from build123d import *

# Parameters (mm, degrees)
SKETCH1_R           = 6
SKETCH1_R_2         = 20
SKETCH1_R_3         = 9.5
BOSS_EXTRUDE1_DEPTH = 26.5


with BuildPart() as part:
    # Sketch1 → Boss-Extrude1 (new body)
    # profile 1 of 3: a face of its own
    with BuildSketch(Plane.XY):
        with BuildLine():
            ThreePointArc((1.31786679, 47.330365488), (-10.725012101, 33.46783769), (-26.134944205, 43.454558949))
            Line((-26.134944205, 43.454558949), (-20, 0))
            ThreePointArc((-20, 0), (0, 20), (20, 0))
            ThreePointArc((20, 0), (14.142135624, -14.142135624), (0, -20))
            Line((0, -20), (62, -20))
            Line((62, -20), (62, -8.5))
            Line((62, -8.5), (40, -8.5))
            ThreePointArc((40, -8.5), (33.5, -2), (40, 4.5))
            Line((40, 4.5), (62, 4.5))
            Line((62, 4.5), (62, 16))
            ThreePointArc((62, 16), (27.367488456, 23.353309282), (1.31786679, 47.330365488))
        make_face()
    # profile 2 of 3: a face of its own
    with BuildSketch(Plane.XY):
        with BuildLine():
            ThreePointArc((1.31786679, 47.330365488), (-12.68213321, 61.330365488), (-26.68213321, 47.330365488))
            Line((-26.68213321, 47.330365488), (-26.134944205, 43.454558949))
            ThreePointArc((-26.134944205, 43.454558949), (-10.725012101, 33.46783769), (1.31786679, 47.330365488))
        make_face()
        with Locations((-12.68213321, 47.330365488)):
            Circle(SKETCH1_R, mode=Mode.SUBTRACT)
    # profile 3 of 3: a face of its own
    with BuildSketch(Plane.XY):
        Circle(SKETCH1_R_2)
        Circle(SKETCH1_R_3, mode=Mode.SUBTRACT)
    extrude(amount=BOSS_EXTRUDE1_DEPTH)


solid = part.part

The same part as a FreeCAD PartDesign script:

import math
import FreeCAD as App
import Part
import Sketcher

doc = App.newDocument("Part")
params = doc.addObject("Spreadsheet::Sheet", "Params")
for row, (alias, value) in enumerate([
    ("sketch1_diameter", "12 mm"),
    ("sketch1_diameter2", "19 mm"),
    ("sketch1_radius", "20 mm"),
    ("sketch1_radius2", "67 mm"),
    ("sketch1_radius3", "14 mm"),
    ("pad1_length", "26.5 mm"),
], start=1):
    params.set(f"A{row}", alias)
    params.set(f"B{row}", "=" + value)
    params.setAlias(f"B{row}", alias)

body = doc.addObject("PartDesign::Body", "Body")

# Sketch on XY plane
sketch1 = doc.addObject("Sketcher::SketchObject", "Sketch")
body.addObject(sketch1)
sketch1.AttachmentSupport = (doc.XY_Plane, [""])
sketch1.MapMode = "FlatFace"
sketch1.addGeometry([
    Part.LineSegment(App.Vector(-26.134944, 43.454559, 0), App.Vector(-20, 0, 0)),  # 0
    Part.ArcOfCircle(Part.Circle(App.Vector(0, 0, 0), App.Vector(0, 0, 1), 20), math.radians(180), math.radians(270)),  # 1
    Part.LineSegment(App.Vector(0, -20, 0), App.Vector(62, -20, 0)),  # 2
    Part.LineSegment(App.Vector(62, -20, 0), App.Vector(62, -8.5, 0)),  # 3
    Part.LineSegment(App.Vector(62, -8.5, 0), App.Vector(40, -8.5, 0)),  # 4
    Part.ArcOfCircle(Part.Circle(App.Vector(40, -2, 0), App.Vector(0, 0, 1), 6.5), math.radians(90), math.radians(270)),  # 5
    Part.LineSegment(App.Vector(40, 4.5, 0), App.Vector(62, 4.5, 0)),  # 6
    Part.LineSegment(App.Vector(62, 4.5, 0), App.Vector(62, 16, 0)),  # 7
    Part.ArcOfCircle(Part.Circle(App.Vector(58.104741, 82.886672, 0), App.Vector(0, 0, 1), 67), math.radians(-147.947835), math.radians(-86.667047)),  # 8
    Part.ArcOfCircle(Part.Circle(App.Vector(-12.682133, 47.330365, 0), App.Vector(0, 0, 1), 14), math.radians(0), math.radians(180)),  # 9
    Part.LineSegment(App.Vector(-26.682133, 47.330365, 0), App.Vector(-26.134944, 43.454559, 0)),  # 10
    Part.Circle(App.Vector(-12.682133, 47.330365, 0), App.Vector(0, 0, 1), 6),  # 11
    Part.Circle(App.Vector(0, 0, 0), App.Vector(0, 0, 1), 9.5),  # 12
], False)
sketch1.addConstraint([
    Sketcher.Constraint("Coincident", 0, 2, 1, 1),
    Sketcher.Constraint("Tangent", 1, 2, 2, 1),
    Sketcher.Constraint("Coincident", 2, 2, 3, 1),
    Sketcher.Constraint("Coincident", 3, 2, 4, 1),
    Sketcher.Constraint("Tangent", 4, 2, 5, 2),
    Sketcher.Constraint("Tangent", 5, 1, 6, 1),
    Sketcher.Constraint("Coincident", 6, 2, 7, 1),
    Sketcher.Constraint("Coincident", 7, 2, 8, 2),
    Sketcher.Constraint("Coincident", 8, 1, 9, 1),
    Sketcher.Constraint("Coincident", 9, 2, 10, 1),
    Sketcher.Constraint("Coincident", 10, 2, 0, 1),
    Sketcher.Constraint("Horizontal", 2),
    Sketcher.Constraint("Vertical", 3),
    Sketcher.Constraint("Horizontal", 4),
    Sketcher.Constraint("Horizontal", 6),
    Sketcher.Constraint("Vertical", 7),
    Sketcher.Constraint("Coincident", 1, 3, -1, 1),
    Sketcher.Constraint("Coincident", 12, 3, -1, 1),
    Sketcher.Constraint("Coincident", 11, 3, 9, 3),
    Sketcher.Constraint("PointOnObject", 0, 2, -1),
    Sketcher.Constraint("Parallel", 0, 10),
    Sketcher.Constraint("Horizontal", 11, 3, 8, 1),
    Sketcher.Constraint("Horizontal", 8, 1, 9, 2),
    Sketcher.Constraint("Vertical", 3, 2, 6, 2),
    Sketcher.Constraint("Equal", 3, 7),
    Sketcher.Constraint("Diameter", 11, 12.0),
    Sketcher.Constraint("Diameter", 12, 19.0),
    Sketcher.Constraint("Radius", 1, 20.0),
    Sketcher.Constraint("Radius", 8, 67.0),
    Sketcher.Constraint("Radius", 9, 14.0),
    Sketcher.Constraint("Radius", 5, 6.5),
    Sketcher.Constraint("DistanceX", 2, 1, 2, 2, 62.0),
    Sketcher.Constraint("DistanceX", 4, 2, 4, 1, 22.0),
    Sketcher.Constraint("DistanceY", 3, 1, 3, 2, 11.5),
    Sketcher.Constraint("Distance", 0, 43.88549),
    Sketcher.Constraint("DistanceX", -1, 1, 8, 3, 58.104741),
    Sketcher.Constraint("DistanceY", -1, 1, 10, 2, 43.454559),
])
sketch1.setExpression("Constraints[25]", "Params.sketch1_diameter")
sketch1.setExpression("Constraints[26]", "Params.sketch1_diameter2")
sketch1.setExpression("Constraints[27]", "Params.sketch1_radius")
sketch1.setExpression("Constraints[28]", "Params.sketch1_radius2")
sketch1.setExpression("Constraints[29]", "Params.sketch1_radius3")
pad1 = doc.addObject("PartDesign::Pad", "Pad")
body.addObject(pad1)
pad1.Profile = sketch1
pad1.setExpression("Length", "Params.pad1_length")

doc.recompute()
